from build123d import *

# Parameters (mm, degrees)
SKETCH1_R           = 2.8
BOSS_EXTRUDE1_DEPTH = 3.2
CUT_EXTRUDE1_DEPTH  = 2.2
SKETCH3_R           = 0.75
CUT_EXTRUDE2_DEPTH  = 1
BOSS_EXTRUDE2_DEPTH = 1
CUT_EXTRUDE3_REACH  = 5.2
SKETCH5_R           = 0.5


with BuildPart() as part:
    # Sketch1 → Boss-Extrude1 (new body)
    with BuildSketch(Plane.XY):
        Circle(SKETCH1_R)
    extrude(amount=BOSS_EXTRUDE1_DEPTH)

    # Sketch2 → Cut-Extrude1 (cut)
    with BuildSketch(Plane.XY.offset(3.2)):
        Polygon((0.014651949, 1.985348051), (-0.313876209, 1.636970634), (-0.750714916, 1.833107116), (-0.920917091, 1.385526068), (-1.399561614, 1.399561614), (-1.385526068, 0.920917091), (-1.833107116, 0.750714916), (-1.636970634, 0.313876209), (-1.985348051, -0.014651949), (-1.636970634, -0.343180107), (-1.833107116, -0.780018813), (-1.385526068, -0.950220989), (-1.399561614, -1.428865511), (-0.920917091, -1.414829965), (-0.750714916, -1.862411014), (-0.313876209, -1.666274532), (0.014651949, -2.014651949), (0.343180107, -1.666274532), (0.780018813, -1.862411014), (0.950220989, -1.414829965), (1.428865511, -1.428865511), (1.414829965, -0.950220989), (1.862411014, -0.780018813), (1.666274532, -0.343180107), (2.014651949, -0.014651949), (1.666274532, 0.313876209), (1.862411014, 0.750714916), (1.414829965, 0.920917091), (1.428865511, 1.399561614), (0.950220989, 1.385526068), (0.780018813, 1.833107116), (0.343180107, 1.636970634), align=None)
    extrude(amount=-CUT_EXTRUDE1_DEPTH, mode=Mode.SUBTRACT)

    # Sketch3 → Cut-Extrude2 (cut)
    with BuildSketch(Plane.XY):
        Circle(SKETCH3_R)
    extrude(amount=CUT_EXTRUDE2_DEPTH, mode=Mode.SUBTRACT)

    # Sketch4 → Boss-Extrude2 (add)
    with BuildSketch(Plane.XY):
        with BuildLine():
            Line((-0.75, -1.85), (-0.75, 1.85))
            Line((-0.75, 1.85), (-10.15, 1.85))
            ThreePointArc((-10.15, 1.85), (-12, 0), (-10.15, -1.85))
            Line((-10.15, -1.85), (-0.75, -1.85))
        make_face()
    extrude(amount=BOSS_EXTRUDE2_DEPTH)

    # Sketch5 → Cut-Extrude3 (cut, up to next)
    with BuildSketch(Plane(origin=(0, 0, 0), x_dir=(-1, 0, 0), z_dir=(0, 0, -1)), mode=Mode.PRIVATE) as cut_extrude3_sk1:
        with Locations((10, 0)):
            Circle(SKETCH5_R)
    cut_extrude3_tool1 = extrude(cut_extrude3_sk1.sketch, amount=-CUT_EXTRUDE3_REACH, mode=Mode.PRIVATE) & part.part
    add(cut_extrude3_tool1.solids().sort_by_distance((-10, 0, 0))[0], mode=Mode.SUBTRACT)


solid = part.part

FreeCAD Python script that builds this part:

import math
import FreeCAD as App
import Part
import Sketcher

V = App.Vector
Q = App.Units.Quantity

doc = App.newDocument("Part")
body = doc.addObject("PartDesign::Body", "Body")

# Sketch on XY plane
sketch1 = doc.addObject("Sketcher::SketchObject", "Sketch")
body.addObject(sketch1)
sketch1.AttachmentSupport = (doc.XY_Plane, [""])
sketch1.MapMode = "FlatFace"
sketch1.addGeometry(Part.Circle(V(0, 0, 0), V(0, 0, 1), 2.8), False)
sketch1.addConstraint(Sketcher.Constraint("Coincident", 0, 3, -1, 1))
sketch1.addConstraint(Sketcher.Constraint("Diameter", 0, Q("5.6 mm")))
pad1 = doc.addObject("PartDesign::Pad", "Pad")
body.addObject(pad1)
pad1.Profile = sketch1
pad1.Length = 3.2

# Sketch on XY plane
sketch2 = doc.addObject("Sketcher::SketchObject", "Sketch001")
body.addObject(sketch2)
sketch2.AttachmentSupport = (doc.XY_Plane, [""])
sketch2.MapMode = "FlatFace"
sketch2.AttachmentOffset = App.Placement(V(0, 0, 3.2), App.Rotation())
sketch2.addGeometry(Part.LineSegment(V(0.014652, 1.985348, 0), V(-0.313876, 1.636971, 0)), False)
sketch2.addGeometry(Part.LineSegment(V(-0.313876, 1.636971, 0), V(-0.750715, 1.833107, 0)), False)
sketch2.addGeometry(Part.LineSegment(V(-0.750715, 1.833107, 0), V(-0.920917, 1.385526, 0)), False)
sketch2.addGeometry(Part.LineSegment(V(-0.920917, 1.385526, 0), V(-1.399562, 1.399562, 0)), False)
sketch2.addGeometry(Part.LineSegment(V(-1.399562, 1.399562, 0), V(-1.385526, 0.920917, 0)), False)
sketch2.addGeometry(Part.LineSegment(V(-1.385526, 0.920917, 0), V(-1.833107, 0.750715, 0)), False)
sketch2.addGeometry(Part.LineSegment(V(-1.833107, 0.750715, 0), V(-1.636971, 0.313876, 0)), False)
sketch2.addGeometry(Part.LineSegment(V(-1.636971, 0.313876, 0), V(-1.985348, -0.014652, 0)), False)
sketch2.addGeometry(Part.LineSegment(V(-1.985348, -0.014652, 0), V(-1.636971, -0.34318, 0)), False)
sketch2.addGeometry(Part.LineSegment(V(-1.636971, -0.34318, 0), V(-1.833107, -0.780019, 0)), False)
sketch2.addGeometry(Part.LineSegment(V(-1.833107, -0.780019, 0), V(-1.385526, -0.950221, 0)), False)
sketch2.addGeometry(Part.LineSegment(V(-1.385526, -0.950221, 0), V(-1.399562, -1.428866, 0)), False)
sketch2.addGeometry(Part.LineSegment(V(-1.399562, -1.428866, 0), V(-0.920917, -1.41483, 0)), False)
sketch2.addGeometry(Part.LineSegment(V(-0.920917, -1.41483, 0), V(-0.750715, -1.862411, 0)), False)
sketch2.addGeometry(Part.LineSegment(V(-0.750715, -1.862411, 0), V(-0.313876, -1.666275, 0)), False)
sketch2.addGeometry(Part.LineSegment(V(-0.313876, -1.666275, 0), V(0.014652, -2.014652, 0)), False)
sketch2.addGeometry(Part.LineSegment(V(0.014652, -2.014652, 0), V(0.34318, -1.666275, 0)), False)
sketch2.addGeometry(Part.LineSegment(V(0.34318, -1.666275, 0), V(0.780019, -1.862411, 0)), False)
sketch2.addGeometry(Part.LineSegment(V(0.780019, -1.862411, 0), V(0.950221, -1.41483, 0)), False)
sketch2.addGeometry(Part.LineSegment(V(0.950221, -1.41483, 0), V(1.428866, -1.428866, 0)), False)
sketch2.addGeometry(Part.LineSegment(V(1.428866, -1.428866, 0), V(1.41483, -0.950221, 0)), False)
sketch2.addGeometry(Part.LineSegment(V(1.41483, -0.950221, 0), V(1.862411, -0.780019, 0)), False)
sketch2.addGeometry(Part.LineSegment(V(1.862411, -0.780019, 0), V(1.666275, -0.34318, 0)), False)
sketch2.addGeometry(Part.LineSegment(V(1.666275, -0.34318, 0), V(2.014652, -0.014652, 0)), False)
sketch2.addGeometry(Part.LineSegment(V(2.014652, -0.014652, 0), V(1.666275, 0.313876, 0)), False)
sketch2.addGeometry(Part.LineSegment(V(1.666275, 0.313876, 0), V(1.862411, 0.750715, 0)), False)
sketch2.addGeometry(Part.LineSegment(V(1.862411, 0.750715, 0), V(1.41483, 0.920917, 0)), False)
sketch2.addGeometry(Part.LineSegment(V(1.41483, 0.920917, 0), V(1.428866, 1.399562, 0)), False)
sketch2.addGeometry(Part.LineSegment(V(1.428866, 1.399562, 0), V(0.950221, 1.385526, 0)), False)
sketch2.addGeometry(Part.LineSegment(V(0.950221, 1.385526, 0), V(0.780019, 1.833107, 0)), False)
sketch2.addGeometry(Part.LineSegment(V(0.780019, 1.833107, 0), V(0.34318, 1.636971, 0)), False)
sketch2.addGeometry(Part.LineSegment(V(0.34318, 1.636971, 0), V(0.014652, 1.985348, 0)), False)
sketch2.addConstraint(Sketcher.Constraint("Coincident", 0, 2, 1, 1))
sketch2.addConstraint(Sketcher.Constraint("Coincident", 1, 2, 2, 1))
sketch2.addConstraint(Sketcher.Constraint("Coincident", 2, 2, 3, 1))
sketch2.addConstraint(Sketcher.Constraint("Coincident", 3, 2, 4, 1))
sketch2.addConstraint(Sketcher.Constraint("Coincident", 4, 2, 5, 1))
sketch2.addConstraint(Sketcher.Constraint("Coincident", 5, 2, 6, 1))
sketch2.addConstraint(Sketcher.Constraint("Coincident", 6, 2, 7, 1))
sketch2.addConstraint(Sketcher.Constraint("Coincident", 7, 2, 8, 1))
sketch2.addConstraint(Sketcher.Constraint("Coincident", 8, 2, 9, 1))
sketch2.addConstraint(Sketcher.Constraint("Coincident", 9, 2, 10, 1))
sketch2.addConstraint(Sketcher.Constraint("Coincident", 10, 2, 11, 1))
sketch2.addConstraint(Sketcher.Constraint("Coincident", 11, 2, 12, 1))
sketch2.addConstraint(Sketcher.Constraint("Coincident", 12, 2, 13, 1))
sketch2.addConstraint(Sketcher.Constraint("Coincident", 13, 2, 14, 1))
sketch2.addConstraint(Sketcher.Constraint("Coincident", 14, 2, 15, 1))
sketch2.addConstraint(Sketcher.Constraint("Coincident", 15, 2, 16, 1))
sketch2.addConstraint(Sketcher.Constraint("Coincident", 16, 2, 17, 1))
sketch2.addConstraint(Sketcher.Constraint("Coincident", 17, 2, 18, 1))
sketch2.addConstraint(Sketcher.Constraint("Coincident", 18, 2, 19, 1))
sketch2.addConstraint(Sketcher.Constraint("Coincident", 19, 2, 20, 1))
sketch2.addConstraint(Sketcher.Constraint("Coincident", 20, 2, 21, 1))
sketch2.addConstraint(Sketcher.Constraint("Coincident", 21, 2, 22, 1))
sketch2.addConstraint(Sketcher.Constraint("Coincident", 22, 2, 23, 1))
sketch2.addConstraint(Sketcher.Constraint("Coincident", 23, 2, 24, 1))
sketch2.addConstraint(Sketcher.Constraint("Coincident", 24, 2, 25, 1))
sketch2.addConstraint(Sketcher.Constraint("Coincident", 25, 2, 26, 1))
sketch2.addConstraint(Sketcher.Constraint("Coincident", 26, 2, 27, 1))
sketch2.addConstraint(Sketcher.Constraint("Coincident", 27, 2, 28, 1))
sketch2.addConstraint(Sketcher.Constraint("Coincident", 28, 2, 29, 1))
sketch2.addConstraint(Sketcher.Constraint("Coincident", 29, 2, 30, 1))
sketch2.addConstraint(Sketcher.Constraint("Coincident", 30, 2, 31, 1))
sketch2.addConstraint(Sketcher.Constraint("Coincident", 31, 2, 0, 1))
sketch2.addConstraint(Sketcher.Constraint("Perpendicular", 0, 8))
sketch2.addConstraint(Sketcher.Constraint("Perpendicular", 1, 9))
sketch2.addConstraint(Sketcher.Constraint("Perpendicular", 2, 10))
sketch2.addConstraint(Sketcher.Constraint("Perpendicular", 3, 11))
sketch2.addConstraint(Sketcher.Constraint("Perpendicular", 4, 12))
sketch2.addConstraint(Sketcher.Constraint("Perpendicular", 5, 13))
sketch2.addConstraint(Sketcher.Constraint("Perpendicular", 6, 14))
sketch2.addConstraint(Sketcher.Constraint("Perpendicular", 7, 15))
sketch2.addConstraint(Sketcher.Constraint("Perpendicular", 8, 16))
sketch2.addConstraint(Sketcher.Constraint("Perpendicular", 9, 17))
sketch2.addConstraint(Sketcher.Constraint("Perpendicular", 10, 18))
sketch2.addConstraint(Sketcher.Constraint("Perpendicular", 11, 19))
sketch2.addConstraint(Sketcher.Constraint("Perpendicular", 12, 20))
sketch2.addConstraint(Sketcher.Constraint("Perpendicular", 13, 21))
sketch2.addConstraint(Sketcher.Constraint("Perpendicular", 14, 22))
sketch2.addConstraint(Sketcher.Constraint("Perpendicular", 15, 23))
sketch2.addConstraint(Sketcher.Constraint("Perpendicular", 16, 24))
sketch2.addConstraint(Sketcher.Constraint("Perpendicular", 17, 25))
sketch2.addConstraint(Sketcher.Constraint("Perpendicular", 18, 26))
sketch2.addConstraint(Sketcher.Constraint("Perpendicular", 19, 27))
sketch2.addConstraint(Sketcher.Constraint("Perpendicular", 20, 28))
sketch2.addConstraint(Sketcher.Constraint("Perpendicular", 21, 29))
sketch2.addConstraint(Sketcher.Constraint("Perpendicular", 22, 30))
sketch2.addConstraint(Sketcher.Constraint("Perpendicular", 23, 31))
sketch2.addConstraint(Sketcher.Constraint("Horizontal", 14, 2, 16, 2))
sketch2.addConstraint(Sketcher.Constraint("Horizontal", 13, 2, 17, 2))
sketch2.addConstraint(Sketcher.Constraint("Horizontal", 12, 2, 18, 2))
sketch2.addConstraint(Sketcher.Constraint("Horizontal", 11, 2, 19, 2))
sketch2.addConstraint(Sketcher.Constraint("Horizontal", 10, 2, 20, 2))
sketch2.addConstraint(Sketcher.Constraint("Horizontal", 9, 2, 21, 2))
sketch2.addConstraint(Sketcher.Constraint("Horizontal", 8, 2, 22, 2))
sketch2.addConstraint(Sketcher.Constraint("Horizontal", 7, 2, 23, 2))
sketch2.addConstraint(Sketcher.Constraint("Horizontal", 6, 2, 24, 2))
sketch2.addConstraint(Sketcher.Constraint("Horizontal", 5, 2, 25, 2))
sketch2.addConstraint(Sketcher.Constraint("Horizontal", 4, 2, 26, 2))
sketch2.addConstraint(Sketcher.Constraint("Horizontal", 3, 2, 27, 2))
sketch2.addConstraint(Sketcher.Constraint("Horizontal", 2, 2, 28, 2))
sketch2.addConstraint(Sketcher.Constraint("Horizontal", 1, 2, 29, 2))
sketch2.addConstraint(Sketcher.Constraint("Horizontal", 0, 2, 30, 2))
sketch2.addConstraint(Sketcher.Constraint("Vertical", 6, 2, 8, 2))
sketch2.addConstraint(Sketcher.Constraint("Vertical", 5, 2, 9, 2))
sketch2.addConstraint(Sketcher.Constraint("Vertical", 4, 2, 10, 2))
sketch2.addConstraint(Sketcher.Constraint("Vertical", 3, 2, 11, 2))
sketch2.addConstraint(Sketcher.Constraint("Vertical", 2, 2, 12, 2))
sketch2.addConstraint(Sketcher.Constraint("Vertical", 1, 2, 13, 2))
sketch2.addConstraint(Sketcher.Constraint("Vertical", 0, 2, 14, 2))
sketch2.addConstraint(Sketcher.Constraint("Vertical", 22, 2, 24, 2))
sketch2.addConstraint(Sketcher.Constraint("Vertical", 21, 2, 25, 2))
sketch2.addConstraint(Sketcher.Constraint("Vertical", 20, 2, 26, 2))
sketch2.addConstraint(Sketcher.Constraint("Vertical", 19, 2, 27, 2))
sketch2.addConstraint(Sketcher.Constraint("Equal", 0, 1))
sketch2.addConstraint(Sketcher.Constraint("Equal", 1, 2))
sketch2.addConstraint(Sketcher.Constraint("Equal", 2, 3))
sketch2.addConstraint(Sketcher.Constraint("Equal", 3, 4))
sketch2.addConstraint(Sketcher.Constraint("Equal", 4, 5))
sketch2.addConstraint(Sketcher.Constraint("Equal", 5, 6))
sketch2.addConstraint(Sketcher.Constraint("Equal", 6, 7))
sketch2.addConstraint(Sketcher.Constraint("Distance", 0, Q("0.47885 mm")))
sketch2.addConstraint(Sketcher.Constraint("DistanceY", -1, 1, 0, 2, Q("1.636971 mm")))
sketch2.addConstraint(Sketcher.Constraint("DistanceX", 3, 2, -1, 1, Q("1.399562 mm")))
sketch2.addConstraint(Sketcher.Constraint("DistanceY", -1, 1, 3, 2, Q("1.399562 mm")))
sketch2.addConstraint(Sketcher.Constraint("DistanceX", 7, 2, -1, 1, Q("1.985348 mm")))
sketch2.addConstraint(Sketcher.Constraint("DistanceY", 7, 2, -1, 1, Q("0.014652 mm")))
sketch2.addConstraint(Sketcher.Constraint("DistanceY", 9, 2, -1, 1, Q("0.780019 mm")))
pocket1 = doc.addObject("PartDesign::Pocket", "Pocket")
body.addObject(pocket1)
pocket1.Profile = sketch2
pocket1.Length = 2.2

# Sketch on XY plane
sketch3 = doc.addObject("Sketcher::SketchObject", "Sketch002")
body.addObject(sketch3)
sketch3.AttachmentSupport = (doc.XY_Plane, [""])
sketch3.MapMode = "FlatFace"
sketch3.addGeometry(Part.Circle(V(0, 0, 0), V(0, 0, 1), 0.75), False)
sketch3.addConstraint(Sketcher.Constraint("Coincident", 0, 3, -1, 1))
sketch3.addConstraint(Sketcher.Constraint("Diameter", 0, Q("1.5 mm")))
pocket2 = doc.addObject("PartDesign::Pocket", "Pocket001")
body.addObject(pocket2)
pocket2.Profile = sketch3
pocket2.Length = 1
pocket2.Reversed = True

# Sketch on XY plane
sketch4 = doc.addObject("Sketcher::SketchObject", "Sketch003")
body.addObject(sketch4)
sketch4.AttachmentSupport = (doc.XY_Plane, [""])
sketch4.MapMode = "FlatFace"
sketch4.addGeometry(Part.LineSegment(V(-0.75, -1.85, 0), V(-0.75, 1.85, 0)), False)
sketch4.addGeometry(Part.LineSegment(V(-0.75, 1.85, 0), V(-10.15, 1.85, 0)), False)
sketch4.addGeometry(Part.ArcOfCircle(Part.Circle(V(-10.15, 0, 0), V(0, 0, 1), 1.85), math.radians(90), math.radians(270)), False)
sketch4.addGeometry(Part.LineSegment(V(-10.15, -1.85, 0), V(-0.75, -1.85, 0)), False)
sketch4.addConstraint(Sketcher.Constraint("Coincident", 0, 2, 1, 1))
sketch4.addConstraint(Sketcher.Constraint("Tangent", 1, 2, 2, 1))
sketch4.addConstraint(Sketcher.Constraint("Tangent", 2, 2, 3, 1))
sketch4.addConstraint(Sketcher.Constraint("Coincident", 3, 2, 0, 1))
sketch4.addConstraint(Sketcher.Constraint("Vertical", 0))
sketch4.addConstraint(Sketcher.Constraint("Horizontal", 1))
sketch4.addConstraint(Sketcher.Constraint("Horizontal", 3))
sketch4.addConstraint(Sketcher.Constraint("PointOnObject", 2, 3, -1))
sketch4.addConstraint(Sketcher.Constraint("Radius", 2, Q("1.85 mm")))
sketch4.addConstraint(Sketcher.Constraint("DistanceX", 1, 2, 1, 1, Q("9.4 mm")))
sketch4.addConstraint(Sketcher.Constraint("DistanceX", 2, 3, -1, 1, Q("10.15 mm")))
pad2 = doc.addObject("PartDesign::Pad", "Pad001")
body.addObject(pad2)
pad2.Profile = sketch4
pad2.Length = 1

# Sketch on XY plane
sketch5 = doc.addObject("Sketcher::SketchObject", "Sketch004")
body.addObject(sketch5)
sketch5.AttachmentSupport = (doc.XY_Plane, [""])
sketch5.MapMode = "FlatFace"
sketch5.addGeometry(Part.Circle(V(-10, 0, 0), V(0, 0, 1), 0.5), False)
sketch5.addConstraint(Sketcher.Constraint("PointOnObject", 0, 3, -1))
sketch5.addConstraint(Sketcher.Constraint("Diameter", 0, Q("1 mm")))
sketch5.addConstraint(Sketcher.Constraint("DistanceX", 0, 3, -1, 1, Q("10 mm")))
pocket3 = doc.addObject("PartDesign::Pocket", "Pocket002")
body.addObject(pocket3)
pocket3.Profile = sketch5
pocket3.Type = "UpToFirst"
pocket3.Reversed = True

doc.recompute()
